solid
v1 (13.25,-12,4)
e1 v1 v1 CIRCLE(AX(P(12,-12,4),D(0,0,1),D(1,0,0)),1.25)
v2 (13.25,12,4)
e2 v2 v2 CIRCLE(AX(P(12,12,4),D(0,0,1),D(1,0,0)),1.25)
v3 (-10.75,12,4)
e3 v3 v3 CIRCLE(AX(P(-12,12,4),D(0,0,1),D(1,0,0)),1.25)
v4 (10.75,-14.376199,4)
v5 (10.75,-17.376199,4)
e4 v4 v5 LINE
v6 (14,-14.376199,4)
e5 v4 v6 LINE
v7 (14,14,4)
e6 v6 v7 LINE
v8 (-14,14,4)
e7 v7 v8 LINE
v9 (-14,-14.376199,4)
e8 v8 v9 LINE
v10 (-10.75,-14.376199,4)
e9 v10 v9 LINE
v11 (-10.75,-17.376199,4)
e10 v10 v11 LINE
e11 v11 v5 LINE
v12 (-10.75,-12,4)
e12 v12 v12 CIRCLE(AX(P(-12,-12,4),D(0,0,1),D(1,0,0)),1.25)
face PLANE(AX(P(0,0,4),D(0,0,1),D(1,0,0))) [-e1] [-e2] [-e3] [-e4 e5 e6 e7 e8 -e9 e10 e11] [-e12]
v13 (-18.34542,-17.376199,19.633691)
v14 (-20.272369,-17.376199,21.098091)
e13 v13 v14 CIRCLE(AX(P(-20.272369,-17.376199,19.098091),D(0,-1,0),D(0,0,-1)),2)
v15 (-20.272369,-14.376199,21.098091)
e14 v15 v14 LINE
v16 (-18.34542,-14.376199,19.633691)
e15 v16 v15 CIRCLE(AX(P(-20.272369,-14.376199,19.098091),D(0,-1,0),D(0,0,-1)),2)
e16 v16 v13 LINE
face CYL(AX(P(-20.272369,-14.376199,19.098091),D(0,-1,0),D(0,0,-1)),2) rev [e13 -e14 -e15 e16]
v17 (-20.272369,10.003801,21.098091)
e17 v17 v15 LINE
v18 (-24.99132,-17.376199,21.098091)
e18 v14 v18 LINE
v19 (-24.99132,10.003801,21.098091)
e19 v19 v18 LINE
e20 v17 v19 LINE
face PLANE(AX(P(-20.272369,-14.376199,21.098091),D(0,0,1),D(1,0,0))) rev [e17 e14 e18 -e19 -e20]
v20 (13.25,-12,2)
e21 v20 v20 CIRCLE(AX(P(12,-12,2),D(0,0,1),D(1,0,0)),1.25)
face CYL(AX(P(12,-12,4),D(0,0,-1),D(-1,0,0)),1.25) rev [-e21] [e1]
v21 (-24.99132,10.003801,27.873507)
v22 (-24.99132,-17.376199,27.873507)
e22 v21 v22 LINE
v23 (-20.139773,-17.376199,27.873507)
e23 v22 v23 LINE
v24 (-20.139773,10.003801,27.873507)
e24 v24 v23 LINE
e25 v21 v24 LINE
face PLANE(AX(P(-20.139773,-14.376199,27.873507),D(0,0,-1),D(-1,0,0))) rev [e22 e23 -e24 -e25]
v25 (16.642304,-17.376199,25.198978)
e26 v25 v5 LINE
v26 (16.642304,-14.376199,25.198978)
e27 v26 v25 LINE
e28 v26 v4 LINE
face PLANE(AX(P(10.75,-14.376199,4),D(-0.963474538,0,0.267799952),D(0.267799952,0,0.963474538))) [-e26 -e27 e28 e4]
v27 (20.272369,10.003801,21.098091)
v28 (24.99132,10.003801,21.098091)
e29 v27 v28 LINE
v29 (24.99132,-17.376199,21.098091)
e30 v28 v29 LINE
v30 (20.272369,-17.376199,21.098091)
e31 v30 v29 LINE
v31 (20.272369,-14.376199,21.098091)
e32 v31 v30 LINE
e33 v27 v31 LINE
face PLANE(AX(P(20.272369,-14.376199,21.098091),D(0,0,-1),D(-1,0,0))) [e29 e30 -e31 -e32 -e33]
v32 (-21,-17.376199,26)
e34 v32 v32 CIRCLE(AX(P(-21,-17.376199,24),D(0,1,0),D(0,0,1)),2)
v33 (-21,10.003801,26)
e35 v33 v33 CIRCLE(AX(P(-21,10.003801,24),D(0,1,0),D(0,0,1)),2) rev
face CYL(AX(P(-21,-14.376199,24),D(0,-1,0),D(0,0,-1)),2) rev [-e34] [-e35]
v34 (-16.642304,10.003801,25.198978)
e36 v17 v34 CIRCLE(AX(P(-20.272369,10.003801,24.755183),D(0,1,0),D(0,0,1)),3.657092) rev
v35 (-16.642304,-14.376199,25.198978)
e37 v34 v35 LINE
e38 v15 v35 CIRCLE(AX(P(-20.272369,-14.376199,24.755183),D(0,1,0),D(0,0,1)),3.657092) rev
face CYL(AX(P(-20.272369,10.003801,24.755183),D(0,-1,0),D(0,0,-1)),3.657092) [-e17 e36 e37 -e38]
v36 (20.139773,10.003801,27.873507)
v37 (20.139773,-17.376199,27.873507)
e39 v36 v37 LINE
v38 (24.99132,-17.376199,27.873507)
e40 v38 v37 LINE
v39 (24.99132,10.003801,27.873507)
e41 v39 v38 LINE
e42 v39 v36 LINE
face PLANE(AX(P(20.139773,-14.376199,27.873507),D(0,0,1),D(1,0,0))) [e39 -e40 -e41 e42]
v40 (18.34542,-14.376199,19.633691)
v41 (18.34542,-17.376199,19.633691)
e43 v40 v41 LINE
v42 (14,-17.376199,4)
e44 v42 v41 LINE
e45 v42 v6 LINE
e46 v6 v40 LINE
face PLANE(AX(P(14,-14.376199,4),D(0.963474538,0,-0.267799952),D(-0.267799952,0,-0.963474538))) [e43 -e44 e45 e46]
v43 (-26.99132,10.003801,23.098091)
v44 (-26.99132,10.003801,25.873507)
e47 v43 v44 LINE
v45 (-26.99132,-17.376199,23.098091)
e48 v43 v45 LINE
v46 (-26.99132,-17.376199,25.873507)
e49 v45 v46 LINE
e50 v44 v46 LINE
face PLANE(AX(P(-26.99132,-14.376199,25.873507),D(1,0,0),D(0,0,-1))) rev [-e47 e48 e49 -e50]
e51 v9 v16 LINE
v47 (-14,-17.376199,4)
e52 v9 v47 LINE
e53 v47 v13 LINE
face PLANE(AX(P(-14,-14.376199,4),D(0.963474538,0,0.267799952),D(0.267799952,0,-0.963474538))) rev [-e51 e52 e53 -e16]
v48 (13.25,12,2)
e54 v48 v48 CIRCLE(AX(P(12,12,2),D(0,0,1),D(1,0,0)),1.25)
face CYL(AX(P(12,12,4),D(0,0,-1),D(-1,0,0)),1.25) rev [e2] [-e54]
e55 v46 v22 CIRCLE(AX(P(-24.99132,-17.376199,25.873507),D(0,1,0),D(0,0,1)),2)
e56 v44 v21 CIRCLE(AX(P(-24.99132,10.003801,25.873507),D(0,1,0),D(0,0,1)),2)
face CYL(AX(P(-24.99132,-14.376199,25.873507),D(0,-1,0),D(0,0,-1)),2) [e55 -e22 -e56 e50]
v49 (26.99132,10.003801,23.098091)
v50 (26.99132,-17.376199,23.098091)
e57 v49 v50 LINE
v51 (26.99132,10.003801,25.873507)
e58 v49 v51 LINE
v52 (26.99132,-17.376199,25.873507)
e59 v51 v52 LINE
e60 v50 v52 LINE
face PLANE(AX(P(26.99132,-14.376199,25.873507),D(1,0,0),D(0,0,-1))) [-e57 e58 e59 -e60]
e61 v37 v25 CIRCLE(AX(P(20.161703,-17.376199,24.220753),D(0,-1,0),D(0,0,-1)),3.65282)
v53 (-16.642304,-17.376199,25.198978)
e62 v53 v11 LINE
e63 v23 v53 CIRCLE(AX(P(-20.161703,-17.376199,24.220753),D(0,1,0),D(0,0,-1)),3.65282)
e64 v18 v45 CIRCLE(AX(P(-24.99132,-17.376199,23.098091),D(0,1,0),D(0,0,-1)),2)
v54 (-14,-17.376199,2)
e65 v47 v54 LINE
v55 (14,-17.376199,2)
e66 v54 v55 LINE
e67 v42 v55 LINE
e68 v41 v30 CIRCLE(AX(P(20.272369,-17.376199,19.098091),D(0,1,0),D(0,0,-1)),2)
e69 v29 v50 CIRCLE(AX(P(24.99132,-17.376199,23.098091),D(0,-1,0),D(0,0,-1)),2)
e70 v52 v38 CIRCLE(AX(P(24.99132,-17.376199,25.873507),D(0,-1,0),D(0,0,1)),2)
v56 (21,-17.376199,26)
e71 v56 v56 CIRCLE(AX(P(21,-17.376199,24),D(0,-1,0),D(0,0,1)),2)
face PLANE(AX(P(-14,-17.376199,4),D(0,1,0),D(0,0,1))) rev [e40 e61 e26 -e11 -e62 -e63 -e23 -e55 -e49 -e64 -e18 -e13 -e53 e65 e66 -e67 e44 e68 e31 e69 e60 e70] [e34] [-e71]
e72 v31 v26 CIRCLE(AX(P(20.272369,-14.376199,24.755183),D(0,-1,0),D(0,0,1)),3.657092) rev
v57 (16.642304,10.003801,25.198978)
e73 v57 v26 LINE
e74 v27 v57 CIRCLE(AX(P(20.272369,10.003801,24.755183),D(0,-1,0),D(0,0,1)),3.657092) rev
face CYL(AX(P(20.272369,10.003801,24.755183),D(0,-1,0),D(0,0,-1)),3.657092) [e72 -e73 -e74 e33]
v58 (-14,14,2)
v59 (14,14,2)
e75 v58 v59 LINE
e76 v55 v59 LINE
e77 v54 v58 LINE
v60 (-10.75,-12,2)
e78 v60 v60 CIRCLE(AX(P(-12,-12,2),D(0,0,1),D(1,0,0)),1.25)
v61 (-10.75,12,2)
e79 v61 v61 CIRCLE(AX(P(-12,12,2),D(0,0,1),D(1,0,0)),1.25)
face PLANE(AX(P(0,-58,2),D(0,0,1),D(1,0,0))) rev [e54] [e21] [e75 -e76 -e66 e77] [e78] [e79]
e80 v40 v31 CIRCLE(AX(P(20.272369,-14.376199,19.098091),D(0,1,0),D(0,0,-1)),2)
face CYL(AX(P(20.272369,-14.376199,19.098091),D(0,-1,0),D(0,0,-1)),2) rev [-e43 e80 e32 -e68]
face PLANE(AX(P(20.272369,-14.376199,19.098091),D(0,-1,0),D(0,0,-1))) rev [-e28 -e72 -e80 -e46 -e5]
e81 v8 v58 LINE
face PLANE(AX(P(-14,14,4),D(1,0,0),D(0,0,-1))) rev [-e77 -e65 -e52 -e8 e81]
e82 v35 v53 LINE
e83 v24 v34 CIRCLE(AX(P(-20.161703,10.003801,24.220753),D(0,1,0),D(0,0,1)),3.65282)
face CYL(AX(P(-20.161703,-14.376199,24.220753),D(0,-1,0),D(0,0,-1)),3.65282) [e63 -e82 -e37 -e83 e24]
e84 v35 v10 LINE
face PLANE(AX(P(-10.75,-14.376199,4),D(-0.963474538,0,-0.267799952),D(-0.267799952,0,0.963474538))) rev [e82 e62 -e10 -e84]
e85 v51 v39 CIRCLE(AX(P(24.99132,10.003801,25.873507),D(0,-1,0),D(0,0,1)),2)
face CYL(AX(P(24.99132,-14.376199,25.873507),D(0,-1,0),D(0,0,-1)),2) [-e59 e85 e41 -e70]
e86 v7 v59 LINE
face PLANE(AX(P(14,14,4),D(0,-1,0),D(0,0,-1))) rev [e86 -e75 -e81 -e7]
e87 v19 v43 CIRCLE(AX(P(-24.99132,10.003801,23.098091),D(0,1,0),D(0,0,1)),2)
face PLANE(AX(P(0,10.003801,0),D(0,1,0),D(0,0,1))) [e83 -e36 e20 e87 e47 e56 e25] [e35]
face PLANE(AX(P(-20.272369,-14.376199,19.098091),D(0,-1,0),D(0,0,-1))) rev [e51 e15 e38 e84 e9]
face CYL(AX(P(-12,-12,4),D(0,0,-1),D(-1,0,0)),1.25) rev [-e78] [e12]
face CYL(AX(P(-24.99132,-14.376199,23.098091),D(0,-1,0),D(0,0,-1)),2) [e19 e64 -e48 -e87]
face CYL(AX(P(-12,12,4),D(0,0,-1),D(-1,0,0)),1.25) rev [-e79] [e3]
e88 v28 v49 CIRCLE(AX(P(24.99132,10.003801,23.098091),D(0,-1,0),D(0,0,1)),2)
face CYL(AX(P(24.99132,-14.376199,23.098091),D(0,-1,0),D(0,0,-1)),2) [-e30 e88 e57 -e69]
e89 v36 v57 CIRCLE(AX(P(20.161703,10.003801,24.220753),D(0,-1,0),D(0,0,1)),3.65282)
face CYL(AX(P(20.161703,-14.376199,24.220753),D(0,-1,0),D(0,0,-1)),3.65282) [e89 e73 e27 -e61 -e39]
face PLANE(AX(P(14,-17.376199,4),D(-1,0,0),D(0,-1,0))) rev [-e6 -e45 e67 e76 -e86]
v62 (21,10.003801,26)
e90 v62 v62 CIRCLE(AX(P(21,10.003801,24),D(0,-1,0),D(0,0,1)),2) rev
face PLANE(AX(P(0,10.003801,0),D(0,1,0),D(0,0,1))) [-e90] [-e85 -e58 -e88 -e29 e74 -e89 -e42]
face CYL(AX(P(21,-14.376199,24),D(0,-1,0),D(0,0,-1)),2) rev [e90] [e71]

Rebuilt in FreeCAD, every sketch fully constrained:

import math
import FreeCAD as App
import Part
import Sketcher


def add_polygon(sketch, points):
    """Adds a closed chain of lines whose ends are joined by coincident constraints."""
    first, n = sketch.GeometryCount, len(points)
    for a, b in zip(points, points[1:] + points[:1]):
        sketch.addGeometry(Part.LineSegment(App.Vector(*a, 0), App.Vector(*b, 0)), False)
    for i in range(n):
        sketch.addConstraint(Sketcher.Constraint("Coincident", first + i, 2, first + (i + 1) % n, 1))

doc = App.newDocument("Part")
params = doc.addObject("Spreadsheet::Sheet", "Params")
for row, (alias, value) in enumerate([
    ("sketch1_diameter", "2.5 mm"),
    ("sketch1_width", "28 mm"),
    ("pad1_length", "4 mm"),
    ("sketch2_diameter", "4 mm"),
    ("sketch2_width", "3.25 mm"),
    ("pad2_length", "3 mm"),
    ("sketch3_diameter", "4 mm"),
    ("pad3_length", "24.38 mm"),
    ("sketch4_width", "28 mm"),
    ("sketch4_height", "2 mm"),
    ("pocket1_length", "72 mm"),
], start=1):
    params.set(f"A{row}", alias)
    params.set(f"B{row}", "=" + value)
    params.setAlias(f"B{row}", alias)

body = doc.addObject("PartDesign::Body", "Body")

sketch1 = doc.addObject("Sketcher::SketchObject", "Sketch")
body.addObject(sketch1)
sketch1.AttachmentSupport = (doc.XY_Plane, [""])
sketch1.MapMode = "FlatFace"
add_polygon(sketch1, [(-14, 14), (-14, -17.4), (14, -17.4), (14, 14)])
sketch1.addGeometry(Part.Circle(App.Vector(-12, -12, 0), App.Vector(0, 0, 1), 1.2), False)
sketch1.addGeometry(Part.Circle(App.Vector(12, -12, 0), App.Vector(0, 0, 1), 1.2), False)
sketch1.addGeometry(Part.Circle(App.Vector(-12, 12, 0), App.Vector(0, 0, 1), 1.2), False)
sketch1.addGeometry(Part.Circle(App.Vector(12, 12, 0), App.Vector(0, 0, 1), 1.2), False)
sketch1.addConstraint([
    Sketcher.Constraint("Vertical", 0),
    Sketcher.Constraint("Horizontal", 1),
    Sketcher.Constraint("Vertical", 2),
    Sketcher.Constraint("Horizontal", 3),
    Sketcher.Constraint("Equal", 4, 5),
    Sketcher.Constraint("Equal", 5, 6),
    Sketcher.Constraint("Equal", 6, 7),
    Sketcher.Constraint("Symmetric", 5, 3, 6, 3, -1, 1),
    Sketcher.Constraint("Symmetric", 4, 3, 7, 3, -1, 1),
    Sketcher.Constraint("Symmetric", 4, 3, 5, 3, -2),
    Sketcher.Constraint("Diameter", 4, 2.5),
    Sketcher.Constraint("DistanceX", 1, 1, 1, 2, 28.0),
    Sketcher.Constraint("DistanceX", 4, 3, -1, 1, 12.0),
    Sketcher.Constraint("DistanceY", 4, 3, -1, 1, 12.0),
    Sketcher.Constraint("DistanceX", 0, 2, -1, 1, 14.0),
    Sketcher.Constraint("DistanceY", -1, 1, 2, 2, 14.0),
    Sketcher.Constraint("DistanceY", 0, 2, 0, 1, 31.376199),
])
sketch1.setExpression("Constraints[14]", "Params.sketch1_diameter")
sketch1.setExpression("Constraints[15]", "Params.sketch1_width")
pad1 = doc.addObject("PartDesign::Pad", "Pad")
body.addObject(pad1)
pad1.Profile = sketch1
pad1.setExpression("Length", "Params.pad1_length")

sketch2 = doc.addObject("Sketcher::SketchObject", "Sketch001")
body.addObject(sketch2)
sketch2.AttachmentSupport = (doc.XZ_Plane, [""])
sketch2.MapMode = "FlatFace"
sketch2.AttachmentOffset = App.Placement(App.Vector(0, 0, 17.376199), App.Rotation())
sketch2.addGeometry([
    Part.LineSegment(App.Vector(-16.6, 25.2, 0), App.Vector(-10.8, 4, 0)),
    Part.LineSegment(App.Vector(-10.8, 4, 0), App.Vector(-14, 4, 0)),
    Part.LineSegment(App.Vector(-14, 4, 0), App.Vector(-18.3, 19.6, 0)),
    Part.ArcOfCircle(Part.Circle(App.Vector(-20.3, 19.1, 0), App.Vector(0, 0, 1), 2), math.radians(16), math.radians(90)),
    Part.LineSegment(App.Vector(-20.3, 21.1, 0), App.Vector(-25, 21.1, 0)),
    Part.ArcOfCircle(Part.Circle(App.Vector(-25, 23.1, 0), App.Vector(0, 0, 1), 2), math.radians(180), math.radians(270)),
    Part.LineSegment(App.Vector(-27, 23.1, 0), App.Vector(-27, 25.9, 0)),
    Part.ArcOfCircle(Part.Circle(App.Vector(-25, 25.9, 0), App.Vector(0, 0, 1), 2), math.radians(90), math.radians(180)),
    Part.LineSegment(App.Vector(-25, 27.9, 0), App.Vector(-20.1, 27.9, 0)),
    Part.ArcOfCircle(Part.Circle(App.Vector(-20.2, 24.2, 0), App.Vector(0, 0, 1), 3.7), math.radians(16), math.radians(90)),
    Part.Circle(App.Vector(-21, 24, 0), App.Vector(0, 0, 1), 2),
], False)
sketch2.addConstraint([
    Sketcher.Constraint("Coincident", 0, 2, 1, 1),
    Sketcher.Constraint("Coincident", 1, 2, 2, 1),
    Sketcher.Constraint("Tangent", 2, 2, 3, 1),
    Sketcher.Constraint("Tangent", 3, 2, 4, 1),
    Sketcher.Constraint("Tangent", 4, 2, 5, 2),
    Sketcher.Constraint("Tangent", 5, 1, 6, 1),
    Sketcher.Constraint("Tangent", 6, 2, 7, 2),
    Sketcher.Constraint("Tangent", 7, 1, 8, 1),
    Sketcher.Constraint("Coincident", 8, 2, 9, 2),
    Sketcher.Constraint("Tangent", 9, 1, 0, 1),
    Sketcher.Constraint("Horizontal", 1),
    Sketcher.Constraint("Horizontal", 4),
    Sketcher.Constraint("Vertical", 6),
    Sketcher.Constraint("Horizontal", 8),
    Sketcher.Constraint("Equal", 3, 5),
    Sketcher.Constraint("Equal", 5, 7),
    Sketcher.Constraint("Equal", 7, 10),
    Sketcher.Constraint("Parallel", 0, 2),
    Sketcher.Constraint("Diameter", 10, 4.0),
    Sketcher.Constraint("DistanceX", 10, 3, -1, 1, 21.0),
    Sketcher.Constraint("DistanceY", -1, 1, 10, 3, 24.0),
    Sketcher.Constraint("DistanceY", -1, 1, 0, 2, 4.0),
    Sketcher.Constraint("DistanceX", 1, 2, -1, 1, 14.0),
    Sketcher.Constraint("DistanceX", 1, 2, 1, 1, 3.25),
    Sketcher.Constraint("Radius", 9, 3.65282),
    Sketcher.Constraint("DistanceX", 4, 2, 4, 1, 4.71895),
    Sketcher.Constraint("DistanceY", 3, 3, 2, 2, 0.5356),
    Sketcher.Constraint("DistanceX", 8, 1, 8, 2, 4.851547),
    Sketcher.Constraint("DistanceY", 6, 1, 6, 2, 2.775416),
    Sketcher.Constraint("DistanceX", 3, 3, -1, 1, 20.272369),
])
sketch2.setExpression("Constraints[18]", "Params.sketch2_diameter")
sketch2.setExpression("Constraints[23]", "Params.sketch2_width")
pad2 = doc.addObject("PartDesign::Pad", "Pad001")
body.addObject(pad2)
pad2.Profile = sketch2
pad2.setExpression("Length", "Params.pad2_length")
pad2.Reversed = True

sketch3 = doc.addObject("Sketcher::SketchObject", "Sketch002")
body.addObject(sketch3)
sketch3.AttachmentSupport = (doc.XZ_Plane, [""])
sketch3.MapMode = "FlatFace"
sketch3.AttachmentOffset = App.Placement(App.Vector(0, 0, 14.376199), App.Rotation())
sketch3.addGeometry([
    Part.ArcOfCircle(Part.Circle(App.Vector(-20.3, 24.8, 0), App.Vector(0, 0, 1), 3.7), math.radians(-90), math.radians(7)),
    Part.LineSegment(App.Vector(-20.3, 21.1, 0), App.Vector(-25, 21.1, 0)),
    Part.ArcOfCircle(Part.Circle(App.Vector(-25, 23.1, 0), App.Vector(0, 0, 1), 2), math.radians(180), math.radians(270)),
    Part.LineSegment(App.Vector(-27, 23.1, 0), App.Vector(-27, 25.9, 0)),
    Part.ArcOfCircle(Part.Circle(App.Vector(-25, 25.9, 0), App.Vector(0, 0, 1), 2), math.radians(90), math.radians(180)),
    Part.LineSegment(App.Vector(-25, 27.9, 0), App.Vector(-20.1, 27.9, 0)),
    Part.ArcOfCircle(Part.Circle(App.Vector(-20.2, 24.2, 0), App.Vector(0, 0, 1), 3.7), math.radians(16), math.radians(90)),
    Part.Circle(App.Vector(-21, 24, 0), App.Vector(0, 0, 1), 2),
], False)
sketch3.addConstraint([
    Sketcher.Constraint("Tangent", 0, 1, 1, 1),
    Sketcher.Constraint("Tangent", 1, 2, 2, 2),
    Sketcher.Constraint("Tangent", 2, 1, 3, 1),
    Sketcher.Constraint("Tangent", 3, 2, 4, 2),
    Sketcher.Constraint("Tangent", 4, 1, 5, 1),
    Sketcher.Constraint("Coincident", 5, 2, 6, 2),
    Sketcher.Constraint("Coincident", 6, 1, 0, 2),
    Sketcher.Constraint("Horizontal", 1),
    Sketcher.Constraint("Vertical", 3),
    Sketcher.Constraint("Horizontal", 5),
    Sketcher.Constraint("Equal", 2, 4),
    Sketcher.Constraint("Equal", 4, 7),
    Sketcher.Constraint("Diameter", 7, 4.0),
    Sketcher.Constraint("DistanceX", 7, 3, -1, 1, 21.0),
    Sketcher.Constraint("DistanceY", -1, 1, 7, 3, 24.0),
    Sketcher.Constraint("Radius", 6, 3.65282),
    Sketcher.Constraint("Radius", 0, 3.657092),
    Sketcher.Constraint("DistanceX", 1, 2, 1, 1, 4.71895),
    Sketcher.Constraint("DistanceX", 6, 3, 6, 1, 3.519399),
    Sketcher.Constraint("DistanceX", 5, 1, 5, 2, 4.851547),
    Sketcher.Constraint("DistanceY", 3, 1, 3, 2, 2.775416),
    Sketcher.Constraint("DistanceX", 0, 3, -1, 1, 20.272369),
    Sketcher.Constraint("DistanceY", -1, 1, 2, 3, 23.098091),
])
sketch3.setExpression("Constraints[12]", "Params.sketch3_diameter")
pad3 = doc.addObject("PartDesign::Pad", "Pad002")
body.addObject(pad3)
pad3.Profile = sketch3
pad3.setExpression("Length", "Params.pad3_length")
pad3.Reversed = True
doc.recompute()

mirrored = doc.addObject("PartDesign::Mirrored", "Mirrored")
body.addObject(mirrored)
mirrored.Originals = [pad2, pad3]
mirrored.MirrorPlane = (doc.YZ_Plane, [""])
body.Tip = mirrored

sketch4 = doc.addObject("Sketcher::SketchObject", "Sketch003")
body.addObject(sketch4)
sketch4.AttachmentSupport = (doc.XZ_Plane, [""])
sketch4.MapMode = "FlatFace"
sketch4.AttachmentOffset = App.Placement(App.Vector(0, 0, -14), App.Rotation())
add_polygon(sketch4, [(-14, 0), (-14, 2), (14, 2), (14, 0)])
sketch4.addConstraint([
    Sketcher.Constraint("Vertical", 0),
    Sketcher.Constraint("Horizontal", 1),
    Sketcher.Constraint("Vertical", 2),
    Sketcher.Constraint("Horizontal", 3),
    Sketcher.Constraint("Symmetric", 2, 2, 3, 2, -1, 1),
    Sketcher.Constraint("DistanceX", 1, 1, 1, 2, 28.0),
    Sketcher.Constraint("DistanceY", 0, 1, 0, 2, 2.0),
])
sketch4.setExpression("Constraints[9]", "Params.sketch4_width")
sketch4.setExpression("Constraints[10]", "Params.sketch4_height")
pocket1 = doc.addObject("PartDesign::Pocket", "Pocket")
body.addObject(pocket1)
pocket1.Profile = sketch4
pocket1.setExpression("Length", "Params.pocket1_length")
pocket1.Reversed = True

doc.recompute()
